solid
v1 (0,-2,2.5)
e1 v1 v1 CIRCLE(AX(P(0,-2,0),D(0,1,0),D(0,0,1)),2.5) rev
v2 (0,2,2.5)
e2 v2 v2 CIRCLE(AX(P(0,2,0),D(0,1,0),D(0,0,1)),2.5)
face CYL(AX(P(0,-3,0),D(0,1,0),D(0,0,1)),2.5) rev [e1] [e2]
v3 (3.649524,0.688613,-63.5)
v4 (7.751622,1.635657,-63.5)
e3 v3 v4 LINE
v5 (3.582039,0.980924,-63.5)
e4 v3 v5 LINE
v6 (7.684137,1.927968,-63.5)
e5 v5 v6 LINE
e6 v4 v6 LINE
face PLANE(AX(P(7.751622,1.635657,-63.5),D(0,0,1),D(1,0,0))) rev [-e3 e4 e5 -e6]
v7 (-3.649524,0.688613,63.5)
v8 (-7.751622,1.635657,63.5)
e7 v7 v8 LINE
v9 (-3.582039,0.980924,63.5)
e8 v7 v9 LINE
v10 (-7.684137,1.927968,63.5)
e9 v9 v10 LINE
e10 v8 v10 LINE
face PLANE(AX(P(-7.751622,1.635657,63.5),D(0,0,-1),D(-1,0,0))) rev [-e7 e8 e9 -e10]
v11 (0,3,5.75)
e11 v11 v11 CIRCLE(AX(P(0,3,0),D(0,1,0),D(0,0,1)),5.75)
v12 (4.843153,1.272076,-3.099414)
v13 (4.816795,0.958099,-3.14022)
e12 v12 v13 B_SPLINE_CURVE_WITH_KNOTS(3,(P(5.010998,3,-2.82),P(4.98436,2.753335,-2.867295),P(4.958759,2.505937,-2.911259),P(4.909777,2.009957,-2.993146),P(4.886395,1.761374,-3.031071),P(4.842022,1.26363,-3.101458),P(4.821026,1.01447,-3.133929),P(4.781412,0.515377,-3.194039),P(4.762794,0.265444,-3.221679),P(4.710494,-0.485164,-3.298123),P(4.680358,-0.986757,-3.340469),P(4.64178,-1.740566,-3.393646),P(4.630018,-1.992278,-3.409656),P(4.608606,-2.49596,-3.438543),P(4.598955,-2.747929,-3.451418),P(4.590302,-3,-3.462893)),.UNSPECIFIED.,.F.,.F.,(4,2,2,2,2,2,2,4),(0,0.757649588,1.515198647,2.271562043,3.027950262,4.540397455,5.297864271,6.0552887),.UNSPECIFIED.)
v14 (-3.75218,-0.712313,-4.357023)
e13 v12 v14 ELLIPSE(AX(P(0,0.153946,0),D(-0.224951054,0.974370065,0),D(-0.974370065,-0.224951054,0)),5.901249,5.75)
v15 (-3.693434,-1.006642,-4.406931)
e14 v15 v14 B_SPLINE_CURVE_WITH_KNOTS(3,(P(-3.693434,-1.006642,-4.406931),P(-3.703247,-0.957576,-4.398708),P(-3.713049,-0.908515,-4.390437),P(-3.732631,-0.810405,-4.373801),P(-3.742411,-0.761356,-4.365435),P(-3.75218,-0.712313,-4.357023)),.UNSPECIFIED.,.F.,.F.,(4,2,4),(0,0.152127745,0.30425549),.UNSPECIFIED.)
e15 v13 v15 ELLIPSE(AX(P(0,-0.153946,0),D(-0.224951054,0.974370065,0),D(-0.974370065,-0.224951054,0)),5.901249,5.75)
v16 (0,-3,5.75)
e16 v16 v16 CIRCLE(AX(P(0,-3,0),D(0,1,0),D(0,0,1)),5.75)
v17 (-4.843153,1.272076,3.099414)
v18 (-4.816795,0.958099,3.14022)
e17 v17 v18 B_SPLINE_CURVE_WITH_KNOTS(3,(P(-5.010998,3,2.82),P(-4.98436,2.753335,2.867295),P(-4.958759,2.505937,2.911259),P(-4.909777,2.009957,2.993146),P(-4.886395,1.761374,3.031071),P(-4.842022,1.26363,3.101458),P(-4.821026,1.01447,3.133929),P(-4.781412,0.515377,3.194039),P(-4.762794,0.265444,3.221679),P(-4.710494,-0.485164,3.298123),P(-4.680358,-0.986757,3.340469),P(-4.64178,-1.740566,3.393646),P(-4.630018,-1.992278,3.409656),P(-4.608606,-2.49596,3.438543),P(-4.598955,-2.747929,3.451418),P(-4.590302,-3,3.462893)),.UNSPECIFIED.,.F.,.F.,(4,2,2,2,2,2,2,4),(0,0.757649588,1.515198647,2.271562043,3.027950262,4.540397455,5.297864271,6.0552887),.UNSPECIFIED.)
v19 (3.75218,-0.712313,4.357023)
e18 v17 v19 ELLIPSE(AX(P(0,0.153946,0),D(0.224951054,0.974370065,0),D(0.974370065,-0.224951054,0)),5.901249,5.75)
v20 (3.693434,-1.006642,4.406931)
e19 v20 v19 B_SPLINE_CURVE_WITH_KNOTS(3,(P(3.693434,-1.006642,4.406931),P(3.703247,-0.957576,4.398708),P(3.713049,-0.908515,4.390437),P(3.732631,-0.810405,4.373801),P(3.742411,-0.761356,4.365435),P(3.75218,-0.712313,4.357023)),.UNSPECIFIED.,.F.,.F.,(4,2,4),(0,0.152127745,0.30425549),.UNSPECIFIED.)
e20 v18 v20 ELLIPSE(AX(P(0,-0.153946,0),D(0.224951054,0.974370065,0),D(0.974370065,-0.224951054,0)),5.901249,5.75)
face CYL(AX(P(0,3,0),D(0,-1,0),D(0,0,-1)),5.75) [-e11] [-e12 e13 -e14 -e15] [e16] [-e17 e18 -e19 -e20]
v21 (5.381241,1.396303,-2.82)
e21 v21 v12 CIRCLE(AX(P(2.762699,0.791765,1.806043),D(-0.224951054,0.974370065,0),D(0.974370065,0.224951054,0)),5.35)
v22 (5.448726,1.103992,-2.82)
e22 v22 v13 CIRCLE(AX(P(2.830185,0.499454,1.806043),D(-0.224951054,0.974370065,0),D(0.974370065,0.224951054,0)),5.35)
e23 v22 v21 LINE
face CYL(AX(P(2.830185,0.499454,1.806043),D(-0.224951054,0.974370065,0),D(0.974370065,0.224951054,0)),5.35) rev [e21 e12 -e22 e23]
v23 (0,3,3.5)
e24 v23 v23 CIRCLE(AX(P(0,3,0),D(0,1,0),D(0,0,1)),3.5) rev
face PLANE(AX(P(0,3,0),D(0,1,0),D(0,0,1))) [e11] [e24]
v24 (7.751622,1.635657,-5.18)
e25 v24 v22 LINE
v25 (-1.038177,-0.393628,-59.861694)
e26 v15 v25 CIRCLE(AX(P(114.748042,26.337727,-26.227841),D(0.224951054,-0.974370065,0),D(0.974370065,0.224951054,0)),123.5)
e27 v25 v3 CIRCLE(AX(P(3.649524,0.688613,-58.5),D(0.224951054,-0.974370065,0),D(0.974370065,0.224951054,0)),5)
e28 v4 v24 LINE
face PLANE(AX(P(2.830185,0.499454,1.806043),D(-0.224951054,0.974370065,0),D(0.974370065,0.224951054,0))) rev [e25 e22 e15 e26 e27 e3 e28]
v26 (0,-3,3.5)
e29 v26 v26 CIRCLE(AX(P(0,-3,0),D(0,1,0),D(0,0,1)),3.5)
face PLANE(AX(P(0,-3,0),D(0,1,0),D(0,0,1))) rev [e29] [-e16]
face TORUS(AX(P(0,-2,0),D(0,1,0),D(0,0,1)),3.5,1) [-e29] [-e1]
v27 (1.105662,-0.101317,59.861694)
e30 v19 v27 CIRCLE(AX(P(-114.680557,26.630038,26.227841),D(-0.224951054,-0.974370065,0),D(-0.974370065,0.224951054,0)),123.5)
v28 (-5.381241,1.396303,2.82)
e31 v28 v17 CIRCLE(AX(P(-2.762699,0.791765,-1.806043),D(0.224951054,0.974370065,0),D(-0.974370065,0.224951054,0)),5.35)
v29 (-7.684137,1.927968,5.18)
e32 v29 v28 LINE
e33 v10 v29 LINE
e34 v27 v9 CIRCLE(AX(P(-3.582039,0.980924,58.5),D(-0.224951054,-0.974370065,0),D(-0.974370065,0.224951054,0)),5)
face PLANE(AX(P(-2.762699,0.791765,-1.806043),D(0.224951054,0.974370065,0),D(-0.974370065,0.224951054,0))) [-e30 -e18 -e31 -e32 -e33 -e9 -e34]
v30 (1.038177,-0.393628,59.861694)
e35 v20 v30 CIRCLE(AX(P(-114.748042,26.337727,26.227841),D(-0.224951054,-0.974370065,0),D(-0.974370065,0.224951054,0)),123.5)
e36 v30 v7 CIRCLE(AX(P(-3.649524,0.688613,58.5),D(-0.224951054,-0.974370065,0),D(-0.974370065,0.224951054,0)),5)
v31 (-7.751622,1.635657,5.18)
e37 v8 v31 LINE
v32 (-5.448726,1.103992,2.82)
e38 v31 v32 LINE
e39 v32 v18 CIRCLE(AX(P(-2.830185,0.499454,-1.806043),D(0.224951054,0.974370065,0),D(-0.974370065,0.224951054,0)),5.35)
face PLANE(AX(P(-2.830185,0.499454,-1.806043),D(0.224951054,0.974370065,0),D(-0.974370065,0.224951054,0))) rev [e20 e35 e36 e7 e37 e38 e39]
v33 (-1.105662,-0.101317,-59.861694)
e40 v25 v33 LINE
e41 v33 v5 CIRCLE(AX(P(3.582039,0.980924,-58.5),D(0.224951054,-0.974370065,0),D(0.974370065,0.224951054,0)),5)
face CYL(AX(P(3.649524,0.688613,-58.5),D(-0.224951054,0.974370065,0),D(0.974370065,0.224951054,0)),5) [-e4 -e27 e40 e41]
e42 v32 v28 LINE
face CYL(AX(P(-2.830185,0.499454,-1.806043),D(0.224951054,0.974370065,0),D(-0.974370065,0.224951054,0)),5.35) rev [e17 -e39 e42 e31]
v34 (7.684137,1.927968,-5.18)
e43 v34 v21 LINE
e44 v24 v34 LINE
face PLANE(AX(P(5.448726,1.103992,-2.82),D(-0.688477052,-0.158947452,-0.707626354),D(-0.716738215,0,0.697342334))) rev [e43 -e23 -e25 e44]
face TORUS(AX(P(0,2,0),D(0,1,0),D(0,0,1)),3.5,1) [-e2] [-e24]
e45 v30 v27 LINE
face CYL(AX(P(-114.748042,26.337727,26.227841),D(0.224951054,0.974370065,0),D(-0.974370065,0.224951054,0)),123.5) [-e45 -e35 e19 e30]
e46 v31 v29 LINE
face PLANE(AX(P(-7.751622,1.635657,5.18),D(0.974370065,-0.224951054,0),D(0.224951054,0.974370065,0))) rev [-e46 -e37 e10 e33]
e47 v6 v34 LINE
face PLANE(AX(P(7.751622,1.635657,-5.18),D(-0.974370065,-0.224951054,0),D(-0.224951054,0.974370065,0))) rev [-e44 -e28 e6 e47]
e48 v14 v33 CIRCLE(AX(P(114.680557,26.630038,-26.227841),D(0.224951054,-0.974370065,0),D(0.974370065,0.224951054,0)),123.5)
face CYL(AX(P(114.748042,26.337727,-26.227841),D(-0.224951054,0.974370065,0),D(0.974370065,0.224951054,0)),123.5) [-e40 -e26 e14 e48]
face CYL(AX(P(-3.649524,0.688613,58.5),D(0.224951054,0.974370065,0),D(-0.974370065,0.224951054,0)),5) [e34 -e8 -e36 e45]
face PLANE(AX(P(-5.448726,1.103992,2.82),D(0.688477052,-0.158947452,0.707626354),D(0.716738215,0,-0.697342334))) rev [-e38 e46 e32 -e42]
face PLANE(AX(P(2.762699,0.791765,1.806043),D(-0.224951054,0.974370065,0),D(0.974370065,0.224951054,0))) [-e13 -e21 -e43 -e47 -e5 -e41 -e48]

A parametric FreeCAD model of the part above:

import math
import FreeCAD as App
import Part
import Sketcher
from FreeCAD import Vector


def edges_at(feature, points):
    """Names of the edges that pass closest to the given points."""
    edges = feature.Shape.Edges
    near = lambda p: min(range(len(edges)), key=lambda i: edges[i].distToShape(Part.Vertex(*p))[0])
    return sorted({f"Edge{near(p) + 1}" for p in points})

doc = App.newDocument("Part")
body = doc.addObject("PartDesign::Body", "Body")

# Sketch on XZ plane
sketch1 = body.newObject("Sketcher::SketchObject", "Sketch")
sketch1.AttachmentSupport = (doc.getObject("XZ_Plane"), [""])
sketch1.MapMode = "FlatFace"
sketch1.addGeometry(Part.Circle(Vector(0, 0, 0), Vector(0, 0, 1), 6), False)
sketch1.addConstraint([
    Sketcher.Constraint("Coincident", 0, 3, -1, 1),
    Sketcher.Constraint("Diameter", 0, 11.5),
])
pad1 = body.newObject("PartDesign::Pad", "Pad")
pad1.Profile = sketch1
pad1.Length = 6
pad1.Midplane = True

# Sketch on an angled plane
sketch2 = body.newObject("Sketcher::SketchObject", "Sketch001")
sketch2.Placement = App.Placement(Vector(0, 0, 0), App.Rotation(Vector(0.974370065, -0.224951054, 0), Vector(0, 0, 1), Vector(-0.224951054, -0.974370065, 0), "ZXY"))
sketch2.addGeometry([
    Part.LineSegment(Vector(-7.9, 5.2, 0), Vector(-5.6, 2.8, 0)),  # 0
    Part.ArcOfCircle(Part.Circle(Vector(-2.9, -1.8, 0), Vector(0, 0, 1), 5.3), math.radians(-3), math.radians(120)),  # 1
    Part.ArcOfCircle(Part.Circle(Vector(-117.7, 26.2, 0), Vector(0, 0, 1), 123.5), math.radians(-13), math.radians(16)),  # 2
    Part.ArcOfCircle(Part.Circle(Vector(-3.7, 58.5, 0), Vector(0, 0, 1), 5), math.radians(16), math.radians(90)),  # 3
    Part.LineSegment(Vector(-3.7, 63.5, 0), Vector(-7.9, 63.5, 0)),  # 4
    Part.LineSegment(Vector(-7.9, 63.5, 0), Vector(-7.9, 5.2, 0)),  # 5
], False)
sketch2.addConstraint([
    Sketcher.Constraint("Coincident", 0, 2, 1, 2),
    Sketcher.Constraint("Coincident", 1, 1, 2, 1),
    Sketcher.Constraint("Tangent", 2, 2, 3, 1),
    Sketcher.Constraint("Tangent", 3, 2, 4, 1),
    Sketcher.Constraint("Coincident", 4, 2, 5, 1),
    Sketcher.Constraint("Coincident", 5, 2, 0, 1),
    Sketcher.Constraint("Horizontal", 4),
    Sketcher.Constraint("Vertical", 5),
    Sketcher.Constraint("Radius", 3, 5.0),
    Sketcher.Constraint("Radius", 2, 123.5),
    Sketcher.Constraint("Radius", 1, 5.35),
    Sketcher.Constraint("DistanceX", 4, 2, 4, 1, 4.21),
    Sketcher.Constraint("DistanceY", 5, 2, 5, 1, 58.32),
    Sketcher.Constraint("DistanceY", -1, 1, 3, 3, 58.5),
    Sketcher.Constraint("DistanceY", 1, 1, 5, 2, 7.3),
    Sketcher.Constraint("Distance", 0, 3.34),
    Sketcher.Constraint("DistanceX", 1, 3, -1, 1, 2.87),
    Sketcher.Constraint("DistanceY", -1, 1, 0, 2, 2.82),
    Sketcher.Constraint("DistanceX", 0, 2, 1, 1, 8.0282),
])
pad2 = body.newObject("PartDesign::Pad", "Pad001")
pad2.Profile = sketch2
pad2.Length = 0.3
pad2.Midplane = True
doc.recompute()

polarpattern = body.newObject("PartDesign::PolarPattern", "PolarPattern")
polarpattern.Originals = [pad2]
polarpattern.Axis = (doc.getObject("Y_Axis"), [""])
polarpattern.Angle = 360
polarpattern.Occurrences = 2
body.Tip = polarpattern

# Sketch on XZ plane
sketch3 = body.newObject("Sketcher::SketchObject", "Sketch002")
sketch3.AttachmentSupport = (doc.getObject("XZ_Plane"), [""])
sketch3.MapMode = "FlatFace"
sketch3.AttachmentOffset = App.Placement(Vector(0, 0, -3), App.Rotation())
sketch3.addGeometry(Part.Circle(Vector(0, 0, 0), Vector(0, 0, 1), 2.5), False)
sketch3.addConstraint([
    Sketcher.Constraint("Coincident", 0, 3, -1, 1),
    Sketcher.Constraint("Diameter", 0, 5.0),
])
pocket1 = body.newObject("PartDesign::Pocket", "Pocket")
pocket1.Profile = sketch3
pocket1.Type = "ThroughAll"
pocket1.Reversed = True
doc.recompute()

fillet = body.newObject("PartDesign::Fillet", "Fillet")
fillet.Base = (pocket1, edges_at(pocket1, [(0, -3, -2.5), (0, 3, -2.5)]))
fillet.Radius = 1

doc.recompute()
